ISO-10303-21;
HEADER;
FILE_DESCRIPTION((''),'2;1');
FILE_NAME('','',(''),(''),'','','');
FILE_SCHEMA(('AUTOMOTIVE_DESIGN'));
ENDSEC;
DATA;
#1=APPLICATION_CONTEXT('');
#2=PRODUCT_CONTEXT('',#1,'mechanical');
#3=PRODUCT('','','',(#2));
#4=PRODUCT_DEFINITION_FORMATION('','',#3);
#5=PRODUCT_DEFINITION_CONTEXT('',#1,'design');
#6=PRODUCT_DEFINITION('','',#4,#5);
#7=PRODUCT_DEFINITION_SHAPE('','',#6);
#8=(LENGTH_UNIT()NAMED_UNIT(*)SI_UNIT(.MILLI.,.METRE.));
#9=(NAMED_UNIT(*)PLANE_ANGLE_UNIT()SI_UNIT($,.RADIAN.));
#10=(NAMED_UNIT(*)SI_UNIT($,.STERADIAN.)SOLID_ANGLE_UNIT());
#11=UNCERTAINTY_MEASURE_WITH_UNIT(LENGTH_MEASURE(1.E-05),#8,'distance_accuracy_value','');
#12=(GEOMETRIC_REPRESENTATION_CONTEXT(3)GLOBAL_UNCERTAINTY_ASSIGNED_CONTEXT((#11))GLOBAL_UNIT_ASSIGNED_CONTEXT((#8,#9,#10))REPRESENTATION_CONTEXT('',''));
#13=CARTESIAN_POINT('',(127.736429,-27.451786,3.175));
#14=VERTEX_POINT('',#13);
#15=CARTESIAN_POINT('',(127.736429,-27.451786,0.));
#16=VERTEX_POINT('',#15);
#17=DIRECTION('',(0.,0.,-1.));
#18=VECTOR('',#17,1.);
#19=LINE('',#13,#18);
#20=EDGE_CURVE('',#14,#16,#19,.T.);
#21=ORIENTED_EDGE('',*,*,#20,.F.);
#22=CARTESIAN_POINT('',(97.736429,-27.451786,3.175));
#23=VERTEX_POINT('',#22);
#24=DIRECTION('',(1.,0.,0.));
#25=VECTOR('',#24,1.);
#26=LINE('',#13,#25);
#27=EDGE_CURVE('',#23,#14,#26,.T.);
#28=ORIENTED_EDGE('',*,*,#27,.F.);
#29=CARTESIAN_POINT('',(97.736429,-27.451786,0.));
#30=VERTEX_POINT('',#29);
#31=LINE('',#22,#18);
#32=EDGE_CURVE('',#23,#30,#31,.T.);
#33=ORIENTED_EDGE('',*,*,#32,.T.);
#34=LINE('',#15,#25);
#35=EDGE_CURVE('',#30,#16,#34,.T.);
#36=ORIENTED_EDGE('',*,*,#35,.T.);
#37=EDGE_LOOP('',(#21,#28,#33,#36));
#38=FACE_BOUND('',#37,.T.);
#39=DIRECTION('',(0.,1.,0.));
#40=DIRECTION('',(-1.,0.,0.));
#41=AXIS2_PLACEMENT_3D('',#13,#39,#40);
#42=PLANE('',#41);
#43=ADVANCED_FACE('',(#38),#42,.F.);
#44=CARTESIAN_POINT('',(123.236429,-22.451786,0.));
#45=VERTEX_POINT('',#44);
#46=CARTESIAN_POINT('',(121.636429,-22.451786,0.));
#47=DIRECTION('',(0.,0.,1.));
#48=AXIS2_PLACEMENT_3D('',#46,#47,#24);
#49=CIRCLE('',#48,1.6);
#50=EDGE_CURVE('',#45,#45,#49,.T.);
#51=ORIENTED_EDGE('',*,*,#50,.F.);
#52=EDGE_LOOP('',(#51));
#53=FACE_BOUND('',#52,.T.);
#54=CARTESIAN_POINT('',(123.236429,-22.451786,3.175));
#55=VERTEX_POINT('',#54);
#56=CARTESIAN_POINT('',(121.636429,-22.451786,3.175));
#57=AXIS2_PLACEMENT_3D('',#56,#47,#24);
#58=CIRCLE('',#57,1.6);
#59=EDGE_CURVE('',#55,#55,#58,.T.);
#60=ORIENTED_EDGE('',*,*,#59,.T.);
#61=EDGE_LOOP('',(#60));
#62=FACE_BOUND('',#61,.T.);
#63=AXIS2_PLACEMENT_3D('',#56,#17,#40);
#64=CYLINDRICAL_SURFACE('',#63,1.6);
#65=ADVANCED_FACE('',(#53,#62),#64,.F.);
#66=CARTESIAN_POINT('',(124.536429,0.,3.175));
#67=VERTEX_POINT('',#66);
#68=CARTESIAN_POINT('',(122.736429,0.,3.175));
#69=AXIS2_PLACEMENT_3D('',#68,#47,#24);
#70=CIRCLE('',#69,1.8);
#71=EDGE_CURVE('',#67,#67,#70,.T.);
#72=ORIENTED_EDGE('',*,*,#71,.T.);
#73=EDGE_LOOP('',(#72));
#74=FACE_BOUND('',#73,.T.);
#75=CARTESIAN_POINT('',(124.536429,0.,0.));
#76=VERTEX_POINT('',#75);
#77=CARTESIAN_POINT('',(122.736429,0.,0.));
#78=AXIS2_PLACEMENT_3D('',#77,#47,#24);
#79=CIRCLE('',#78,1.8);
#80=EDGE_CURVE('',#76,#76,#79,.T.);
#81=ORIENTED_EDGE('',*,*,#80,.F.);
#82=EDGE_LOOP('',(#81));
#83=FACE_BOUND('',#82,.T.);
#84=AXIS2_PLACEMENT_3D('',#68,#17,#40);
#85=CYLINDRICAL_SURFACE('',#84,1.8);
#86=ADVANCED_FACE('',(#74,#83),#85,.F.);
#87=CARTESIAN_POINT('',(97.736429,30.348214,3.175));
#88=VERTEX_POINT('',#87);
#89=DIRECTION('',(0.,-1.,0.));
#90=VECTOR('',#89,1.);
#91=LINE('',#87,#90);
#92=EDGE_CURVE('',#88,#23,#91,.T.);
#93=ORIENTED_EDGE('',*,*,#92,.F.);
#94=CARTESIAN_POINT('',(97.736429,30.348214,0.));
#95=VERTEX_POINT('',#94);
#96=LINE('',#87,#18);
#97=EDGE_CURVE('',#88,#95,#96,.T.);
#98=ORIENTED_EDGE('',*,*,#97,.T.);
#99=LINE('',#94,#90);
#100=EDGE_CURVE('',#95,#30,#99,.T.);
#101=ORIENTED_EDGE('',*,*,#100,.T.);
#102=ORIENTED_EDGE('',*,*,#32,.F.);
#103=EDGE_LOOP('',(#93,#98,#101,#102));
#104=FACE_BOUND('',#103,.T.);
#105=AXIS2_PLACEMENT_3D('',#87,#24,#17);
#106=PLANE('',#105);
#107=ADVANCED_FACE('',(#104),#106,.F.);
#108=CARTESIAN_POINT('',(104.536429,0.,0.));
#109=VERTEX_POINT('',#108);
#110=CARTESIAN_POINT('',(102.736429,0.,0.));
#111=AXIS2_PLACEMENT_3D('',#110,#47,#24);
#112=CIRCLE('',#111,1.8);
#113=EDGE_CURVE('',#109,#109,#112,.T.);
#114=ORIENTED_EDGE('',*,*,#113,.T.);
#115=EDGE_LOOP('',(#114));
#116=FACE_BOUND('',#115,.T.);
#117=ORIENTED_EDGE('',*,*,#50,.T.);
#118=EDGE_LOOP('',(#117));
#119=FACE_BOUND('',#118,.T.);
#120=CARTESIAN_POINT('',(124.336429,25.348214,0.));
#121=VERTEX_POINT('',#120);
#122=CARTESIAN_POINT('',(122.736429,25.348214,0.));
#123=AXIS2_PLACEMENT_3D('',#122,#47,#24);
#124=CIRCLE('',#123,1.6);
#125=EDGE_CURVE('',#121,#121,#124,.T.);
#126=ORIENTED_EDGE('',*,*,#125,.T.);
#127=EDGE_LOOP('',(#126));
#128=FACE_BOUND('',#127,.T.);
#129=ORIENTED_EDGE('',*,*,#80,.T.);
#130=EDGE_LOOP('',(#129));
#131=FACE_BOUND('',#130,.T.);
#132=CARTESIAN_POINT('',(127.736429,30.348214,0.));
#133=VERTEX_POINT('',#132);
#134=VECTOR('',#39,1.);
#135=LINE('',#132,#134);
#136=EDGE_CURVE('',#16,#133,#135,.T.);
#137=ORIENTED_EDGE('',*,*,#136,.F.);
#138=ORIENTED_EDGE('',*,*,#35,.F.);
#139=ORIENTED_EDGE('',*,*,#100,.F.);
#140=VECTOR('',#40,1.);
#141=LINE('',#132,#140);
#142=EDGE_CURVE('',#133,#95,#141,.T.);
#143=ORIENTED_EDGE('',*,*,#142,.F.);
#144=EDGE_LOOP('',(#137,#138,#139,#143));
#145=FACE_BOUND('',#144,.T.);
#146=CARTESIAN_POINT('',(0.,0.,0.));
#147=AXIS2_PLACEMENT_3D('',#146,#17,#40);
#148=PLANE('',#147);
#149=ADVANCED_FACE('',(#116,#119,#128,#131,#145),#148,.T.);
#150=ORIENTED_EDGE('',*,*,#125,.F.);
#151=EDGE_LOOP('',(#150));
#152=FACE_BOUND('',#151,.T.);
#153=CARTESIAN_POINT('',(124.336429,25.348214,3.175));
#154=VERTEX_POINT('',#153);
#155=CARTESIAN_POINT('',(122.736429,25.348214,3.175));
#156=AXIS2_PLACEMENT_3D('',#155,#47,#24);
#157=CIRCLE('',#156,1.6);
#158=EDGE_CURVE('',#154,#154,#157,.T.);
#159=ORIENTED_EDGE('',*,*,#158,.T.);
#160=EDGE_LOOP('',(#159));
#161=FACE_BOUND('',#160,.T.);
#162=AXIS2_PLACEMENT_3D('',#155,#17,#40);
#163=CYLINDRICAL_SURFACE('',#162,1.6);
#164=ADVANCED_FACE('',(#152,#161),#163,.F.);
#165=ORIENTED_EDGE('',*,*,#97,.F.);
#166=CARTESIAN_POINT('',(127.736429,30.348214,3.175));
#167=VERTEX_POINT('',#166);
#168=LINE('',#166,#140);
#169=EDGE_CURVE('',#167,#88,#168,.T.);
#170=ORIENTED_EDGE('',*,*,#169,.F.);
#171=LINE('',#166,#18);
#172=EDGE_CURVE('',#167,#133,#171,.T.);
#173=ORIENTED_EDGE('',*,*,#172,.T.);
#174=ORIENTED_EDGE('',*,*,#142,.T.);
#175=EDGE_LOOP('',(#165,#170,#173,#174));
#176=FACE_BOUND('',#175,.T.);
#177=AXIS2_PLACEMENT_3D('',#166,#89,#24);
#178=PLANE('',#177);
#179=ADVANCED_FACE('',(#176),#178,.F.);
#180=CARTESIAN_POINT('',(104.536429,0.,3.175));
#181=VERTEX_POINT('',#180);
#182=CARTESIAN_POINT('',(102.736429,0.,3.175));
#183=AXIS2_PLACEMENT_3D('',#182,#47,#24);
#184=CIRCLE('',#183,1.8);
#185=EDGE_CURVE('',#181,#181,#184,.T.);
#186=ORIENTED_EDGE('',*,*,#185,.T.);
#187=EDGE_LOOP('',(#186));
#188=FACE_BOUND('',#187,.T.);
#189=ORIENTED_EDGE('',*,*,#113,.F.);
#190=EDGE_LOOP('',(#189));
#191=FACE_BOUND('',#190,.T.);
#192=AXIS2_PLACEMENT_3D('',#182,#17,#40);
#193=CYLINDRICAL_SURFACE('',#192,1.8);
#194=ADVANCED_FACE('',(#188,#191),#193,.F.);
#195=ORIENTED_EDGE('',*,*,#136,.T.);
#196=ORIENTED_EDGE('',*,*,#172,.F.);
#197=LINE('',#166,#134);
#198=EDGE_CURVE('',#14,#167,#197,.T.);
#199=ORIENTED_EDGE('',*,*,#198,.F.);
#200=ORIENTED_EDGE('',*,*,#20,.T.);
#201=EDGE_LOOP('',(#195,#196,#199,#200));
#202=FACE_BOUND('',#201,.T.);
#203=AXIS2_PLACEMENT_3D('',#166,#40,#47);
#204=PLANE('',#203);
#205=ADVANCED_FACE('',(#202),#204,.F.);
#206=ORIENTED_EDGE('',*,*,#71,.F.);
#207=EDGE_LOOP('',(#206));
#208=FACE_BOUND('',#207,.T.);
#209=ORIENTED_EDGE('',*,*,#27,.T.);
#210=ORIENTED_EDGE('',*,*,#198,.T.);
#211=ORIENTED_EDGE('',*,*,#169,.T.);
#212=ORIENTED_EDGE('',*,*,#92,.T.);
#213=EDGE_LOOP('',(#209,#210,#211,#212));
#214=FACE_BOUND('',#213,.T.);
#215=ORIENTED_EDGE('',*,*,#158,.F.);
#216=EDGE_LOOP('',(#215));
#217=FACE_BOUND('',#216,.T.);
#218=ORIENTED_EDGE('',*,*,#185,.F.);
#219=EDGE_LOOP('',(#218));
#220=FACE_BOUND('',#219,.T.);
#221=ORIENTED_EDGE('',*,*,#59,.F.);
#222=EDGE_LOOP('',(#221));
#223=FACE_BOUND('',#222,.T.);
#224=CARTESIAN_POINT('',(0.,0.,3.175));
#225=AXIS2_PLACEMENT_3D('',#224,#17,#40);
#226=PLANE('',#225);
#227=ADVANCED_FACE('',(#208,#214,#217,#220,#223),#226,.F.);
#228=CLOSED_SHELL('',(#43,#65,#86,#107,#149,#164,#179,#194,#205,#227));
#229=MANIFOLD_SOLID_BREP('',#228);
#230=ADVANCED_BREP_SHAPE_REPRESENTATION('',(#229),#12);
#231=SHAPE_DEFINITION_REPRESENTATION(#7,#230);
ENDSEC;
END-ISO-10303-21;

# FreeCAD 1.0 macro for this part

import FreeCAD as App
import Part
import Sketcher

doc = App.newDocument("Part")
body = doc.addObject("PartDesign::Body", "Body")

# Sketch on XY plane
sketch1 = body.newObject("Sketcher::SketchObject", "Sketch")
sketch1.AttachmentSupport = (doc.getObject("XY_Plane"), [""])
sketch1.MapMode = "FlatFace"
sketch1.addGeometry([
    Part.LineSegment(App.Vector(97.7, 30.3, 0), App.Vector(97.7, -27.5, 0)),  # 0
    Part.LineSegment(App.Vector(97.7, -27.5, 0), App.Vector(127.7, -27.5, 0)),  # 1
    Part.LineSegment(App.Vector(127.7, -27.5, 0), App.Vector(127.7, 30.3, 0)),  # 2
    Part.LineSegment(App.Vector(127.7, 30.3, 0), App.Vector(97.7, 30.3, 0)),  # 3
    Part.Circle(App.Vector(102.7, 0, 0), App.Vector(0, 0, 1), 1.8),  # 4
    Part.Circle(App.Vector(121.6, -22.5, 0), App.Vector(0, 0, 1), 1.6),  # 5
    Part.Circle(App.Vector(122.7, 0, 0), App.Vector(0, 0, 1), 1.8),  # 6
    Part.Circle(App.Vector(122.7, 25.3, 0), App.Vector(0, 0, 1), 1.6),  # 7
], False)
sketch1.addConstraint([
    Sketcher.Constraint("Coincident", 0, 2, 1, 1),
    Sketcher.Constraint("Coincident", 1, 2, 2, 1),
    Sketcher.Constraint("Coincident", 2, 2, 3, 1),
    Sketcher.Constraint("Coincident", 3, 2, 0, 1),
    Sketcher.Constraint("Vertical", 0),
    Sketcher.Constraint("Horizontal", 1),
    Sketcher.Constraint("Vertical", 2),
    Sketcher.Constraint("Horizontal", 3),
    Sketcher.Constraint("Equal", 4, 6),
    Sketcher.Constraint("Equal", 5, 7),
    Sketcher.Constraint("PointOnObject", 4, 3, -1),
    Sketcher.Constraint("PointOnObject", 6, 3, -1),
    Sketcher.Constraint("Vertical", 6, 3, 7, 3),
    Sketcher.Constraint("Diameter", 4, 3.6),
    Sketcher.Constraint("Diameter", 5, 3.2),
    Sketcher.Constraint("DistanceX", 1, 1, 1, 2, 30.0),
    Sketcher.Constraint("DistanceY", 0, 2, 0, 1, 57.8),
    Sketcher.Constraint("DistanceX", 4, 3, 6, 3, 20.0),
    Sketcher.Constraint("DistanceY", 0, 2, 5, 3, 5.0),
    Sketcher.Constraint("DistanceX", 0, 2, 4, 3, 5.0),
    Sketcher.Constraint("DistanceY", 7, 3, 2, 2, 5.0),
    Sketcher.Constraint("DistanceX", 4, 3, 5, 3, 18.9),
    Sketcher.Constraint("DistanceX", -1, 1, 4, 3, 102.736429),
    Sketcher.Constraint("DistanceY", 5, 3, -1, 1, 22.451786),
])
pad1 = body.newObject("PartDesign::Pad", "Pad")
pad1.Profile = sketch1
pad1.Length = 3.175

doc.recompute()
